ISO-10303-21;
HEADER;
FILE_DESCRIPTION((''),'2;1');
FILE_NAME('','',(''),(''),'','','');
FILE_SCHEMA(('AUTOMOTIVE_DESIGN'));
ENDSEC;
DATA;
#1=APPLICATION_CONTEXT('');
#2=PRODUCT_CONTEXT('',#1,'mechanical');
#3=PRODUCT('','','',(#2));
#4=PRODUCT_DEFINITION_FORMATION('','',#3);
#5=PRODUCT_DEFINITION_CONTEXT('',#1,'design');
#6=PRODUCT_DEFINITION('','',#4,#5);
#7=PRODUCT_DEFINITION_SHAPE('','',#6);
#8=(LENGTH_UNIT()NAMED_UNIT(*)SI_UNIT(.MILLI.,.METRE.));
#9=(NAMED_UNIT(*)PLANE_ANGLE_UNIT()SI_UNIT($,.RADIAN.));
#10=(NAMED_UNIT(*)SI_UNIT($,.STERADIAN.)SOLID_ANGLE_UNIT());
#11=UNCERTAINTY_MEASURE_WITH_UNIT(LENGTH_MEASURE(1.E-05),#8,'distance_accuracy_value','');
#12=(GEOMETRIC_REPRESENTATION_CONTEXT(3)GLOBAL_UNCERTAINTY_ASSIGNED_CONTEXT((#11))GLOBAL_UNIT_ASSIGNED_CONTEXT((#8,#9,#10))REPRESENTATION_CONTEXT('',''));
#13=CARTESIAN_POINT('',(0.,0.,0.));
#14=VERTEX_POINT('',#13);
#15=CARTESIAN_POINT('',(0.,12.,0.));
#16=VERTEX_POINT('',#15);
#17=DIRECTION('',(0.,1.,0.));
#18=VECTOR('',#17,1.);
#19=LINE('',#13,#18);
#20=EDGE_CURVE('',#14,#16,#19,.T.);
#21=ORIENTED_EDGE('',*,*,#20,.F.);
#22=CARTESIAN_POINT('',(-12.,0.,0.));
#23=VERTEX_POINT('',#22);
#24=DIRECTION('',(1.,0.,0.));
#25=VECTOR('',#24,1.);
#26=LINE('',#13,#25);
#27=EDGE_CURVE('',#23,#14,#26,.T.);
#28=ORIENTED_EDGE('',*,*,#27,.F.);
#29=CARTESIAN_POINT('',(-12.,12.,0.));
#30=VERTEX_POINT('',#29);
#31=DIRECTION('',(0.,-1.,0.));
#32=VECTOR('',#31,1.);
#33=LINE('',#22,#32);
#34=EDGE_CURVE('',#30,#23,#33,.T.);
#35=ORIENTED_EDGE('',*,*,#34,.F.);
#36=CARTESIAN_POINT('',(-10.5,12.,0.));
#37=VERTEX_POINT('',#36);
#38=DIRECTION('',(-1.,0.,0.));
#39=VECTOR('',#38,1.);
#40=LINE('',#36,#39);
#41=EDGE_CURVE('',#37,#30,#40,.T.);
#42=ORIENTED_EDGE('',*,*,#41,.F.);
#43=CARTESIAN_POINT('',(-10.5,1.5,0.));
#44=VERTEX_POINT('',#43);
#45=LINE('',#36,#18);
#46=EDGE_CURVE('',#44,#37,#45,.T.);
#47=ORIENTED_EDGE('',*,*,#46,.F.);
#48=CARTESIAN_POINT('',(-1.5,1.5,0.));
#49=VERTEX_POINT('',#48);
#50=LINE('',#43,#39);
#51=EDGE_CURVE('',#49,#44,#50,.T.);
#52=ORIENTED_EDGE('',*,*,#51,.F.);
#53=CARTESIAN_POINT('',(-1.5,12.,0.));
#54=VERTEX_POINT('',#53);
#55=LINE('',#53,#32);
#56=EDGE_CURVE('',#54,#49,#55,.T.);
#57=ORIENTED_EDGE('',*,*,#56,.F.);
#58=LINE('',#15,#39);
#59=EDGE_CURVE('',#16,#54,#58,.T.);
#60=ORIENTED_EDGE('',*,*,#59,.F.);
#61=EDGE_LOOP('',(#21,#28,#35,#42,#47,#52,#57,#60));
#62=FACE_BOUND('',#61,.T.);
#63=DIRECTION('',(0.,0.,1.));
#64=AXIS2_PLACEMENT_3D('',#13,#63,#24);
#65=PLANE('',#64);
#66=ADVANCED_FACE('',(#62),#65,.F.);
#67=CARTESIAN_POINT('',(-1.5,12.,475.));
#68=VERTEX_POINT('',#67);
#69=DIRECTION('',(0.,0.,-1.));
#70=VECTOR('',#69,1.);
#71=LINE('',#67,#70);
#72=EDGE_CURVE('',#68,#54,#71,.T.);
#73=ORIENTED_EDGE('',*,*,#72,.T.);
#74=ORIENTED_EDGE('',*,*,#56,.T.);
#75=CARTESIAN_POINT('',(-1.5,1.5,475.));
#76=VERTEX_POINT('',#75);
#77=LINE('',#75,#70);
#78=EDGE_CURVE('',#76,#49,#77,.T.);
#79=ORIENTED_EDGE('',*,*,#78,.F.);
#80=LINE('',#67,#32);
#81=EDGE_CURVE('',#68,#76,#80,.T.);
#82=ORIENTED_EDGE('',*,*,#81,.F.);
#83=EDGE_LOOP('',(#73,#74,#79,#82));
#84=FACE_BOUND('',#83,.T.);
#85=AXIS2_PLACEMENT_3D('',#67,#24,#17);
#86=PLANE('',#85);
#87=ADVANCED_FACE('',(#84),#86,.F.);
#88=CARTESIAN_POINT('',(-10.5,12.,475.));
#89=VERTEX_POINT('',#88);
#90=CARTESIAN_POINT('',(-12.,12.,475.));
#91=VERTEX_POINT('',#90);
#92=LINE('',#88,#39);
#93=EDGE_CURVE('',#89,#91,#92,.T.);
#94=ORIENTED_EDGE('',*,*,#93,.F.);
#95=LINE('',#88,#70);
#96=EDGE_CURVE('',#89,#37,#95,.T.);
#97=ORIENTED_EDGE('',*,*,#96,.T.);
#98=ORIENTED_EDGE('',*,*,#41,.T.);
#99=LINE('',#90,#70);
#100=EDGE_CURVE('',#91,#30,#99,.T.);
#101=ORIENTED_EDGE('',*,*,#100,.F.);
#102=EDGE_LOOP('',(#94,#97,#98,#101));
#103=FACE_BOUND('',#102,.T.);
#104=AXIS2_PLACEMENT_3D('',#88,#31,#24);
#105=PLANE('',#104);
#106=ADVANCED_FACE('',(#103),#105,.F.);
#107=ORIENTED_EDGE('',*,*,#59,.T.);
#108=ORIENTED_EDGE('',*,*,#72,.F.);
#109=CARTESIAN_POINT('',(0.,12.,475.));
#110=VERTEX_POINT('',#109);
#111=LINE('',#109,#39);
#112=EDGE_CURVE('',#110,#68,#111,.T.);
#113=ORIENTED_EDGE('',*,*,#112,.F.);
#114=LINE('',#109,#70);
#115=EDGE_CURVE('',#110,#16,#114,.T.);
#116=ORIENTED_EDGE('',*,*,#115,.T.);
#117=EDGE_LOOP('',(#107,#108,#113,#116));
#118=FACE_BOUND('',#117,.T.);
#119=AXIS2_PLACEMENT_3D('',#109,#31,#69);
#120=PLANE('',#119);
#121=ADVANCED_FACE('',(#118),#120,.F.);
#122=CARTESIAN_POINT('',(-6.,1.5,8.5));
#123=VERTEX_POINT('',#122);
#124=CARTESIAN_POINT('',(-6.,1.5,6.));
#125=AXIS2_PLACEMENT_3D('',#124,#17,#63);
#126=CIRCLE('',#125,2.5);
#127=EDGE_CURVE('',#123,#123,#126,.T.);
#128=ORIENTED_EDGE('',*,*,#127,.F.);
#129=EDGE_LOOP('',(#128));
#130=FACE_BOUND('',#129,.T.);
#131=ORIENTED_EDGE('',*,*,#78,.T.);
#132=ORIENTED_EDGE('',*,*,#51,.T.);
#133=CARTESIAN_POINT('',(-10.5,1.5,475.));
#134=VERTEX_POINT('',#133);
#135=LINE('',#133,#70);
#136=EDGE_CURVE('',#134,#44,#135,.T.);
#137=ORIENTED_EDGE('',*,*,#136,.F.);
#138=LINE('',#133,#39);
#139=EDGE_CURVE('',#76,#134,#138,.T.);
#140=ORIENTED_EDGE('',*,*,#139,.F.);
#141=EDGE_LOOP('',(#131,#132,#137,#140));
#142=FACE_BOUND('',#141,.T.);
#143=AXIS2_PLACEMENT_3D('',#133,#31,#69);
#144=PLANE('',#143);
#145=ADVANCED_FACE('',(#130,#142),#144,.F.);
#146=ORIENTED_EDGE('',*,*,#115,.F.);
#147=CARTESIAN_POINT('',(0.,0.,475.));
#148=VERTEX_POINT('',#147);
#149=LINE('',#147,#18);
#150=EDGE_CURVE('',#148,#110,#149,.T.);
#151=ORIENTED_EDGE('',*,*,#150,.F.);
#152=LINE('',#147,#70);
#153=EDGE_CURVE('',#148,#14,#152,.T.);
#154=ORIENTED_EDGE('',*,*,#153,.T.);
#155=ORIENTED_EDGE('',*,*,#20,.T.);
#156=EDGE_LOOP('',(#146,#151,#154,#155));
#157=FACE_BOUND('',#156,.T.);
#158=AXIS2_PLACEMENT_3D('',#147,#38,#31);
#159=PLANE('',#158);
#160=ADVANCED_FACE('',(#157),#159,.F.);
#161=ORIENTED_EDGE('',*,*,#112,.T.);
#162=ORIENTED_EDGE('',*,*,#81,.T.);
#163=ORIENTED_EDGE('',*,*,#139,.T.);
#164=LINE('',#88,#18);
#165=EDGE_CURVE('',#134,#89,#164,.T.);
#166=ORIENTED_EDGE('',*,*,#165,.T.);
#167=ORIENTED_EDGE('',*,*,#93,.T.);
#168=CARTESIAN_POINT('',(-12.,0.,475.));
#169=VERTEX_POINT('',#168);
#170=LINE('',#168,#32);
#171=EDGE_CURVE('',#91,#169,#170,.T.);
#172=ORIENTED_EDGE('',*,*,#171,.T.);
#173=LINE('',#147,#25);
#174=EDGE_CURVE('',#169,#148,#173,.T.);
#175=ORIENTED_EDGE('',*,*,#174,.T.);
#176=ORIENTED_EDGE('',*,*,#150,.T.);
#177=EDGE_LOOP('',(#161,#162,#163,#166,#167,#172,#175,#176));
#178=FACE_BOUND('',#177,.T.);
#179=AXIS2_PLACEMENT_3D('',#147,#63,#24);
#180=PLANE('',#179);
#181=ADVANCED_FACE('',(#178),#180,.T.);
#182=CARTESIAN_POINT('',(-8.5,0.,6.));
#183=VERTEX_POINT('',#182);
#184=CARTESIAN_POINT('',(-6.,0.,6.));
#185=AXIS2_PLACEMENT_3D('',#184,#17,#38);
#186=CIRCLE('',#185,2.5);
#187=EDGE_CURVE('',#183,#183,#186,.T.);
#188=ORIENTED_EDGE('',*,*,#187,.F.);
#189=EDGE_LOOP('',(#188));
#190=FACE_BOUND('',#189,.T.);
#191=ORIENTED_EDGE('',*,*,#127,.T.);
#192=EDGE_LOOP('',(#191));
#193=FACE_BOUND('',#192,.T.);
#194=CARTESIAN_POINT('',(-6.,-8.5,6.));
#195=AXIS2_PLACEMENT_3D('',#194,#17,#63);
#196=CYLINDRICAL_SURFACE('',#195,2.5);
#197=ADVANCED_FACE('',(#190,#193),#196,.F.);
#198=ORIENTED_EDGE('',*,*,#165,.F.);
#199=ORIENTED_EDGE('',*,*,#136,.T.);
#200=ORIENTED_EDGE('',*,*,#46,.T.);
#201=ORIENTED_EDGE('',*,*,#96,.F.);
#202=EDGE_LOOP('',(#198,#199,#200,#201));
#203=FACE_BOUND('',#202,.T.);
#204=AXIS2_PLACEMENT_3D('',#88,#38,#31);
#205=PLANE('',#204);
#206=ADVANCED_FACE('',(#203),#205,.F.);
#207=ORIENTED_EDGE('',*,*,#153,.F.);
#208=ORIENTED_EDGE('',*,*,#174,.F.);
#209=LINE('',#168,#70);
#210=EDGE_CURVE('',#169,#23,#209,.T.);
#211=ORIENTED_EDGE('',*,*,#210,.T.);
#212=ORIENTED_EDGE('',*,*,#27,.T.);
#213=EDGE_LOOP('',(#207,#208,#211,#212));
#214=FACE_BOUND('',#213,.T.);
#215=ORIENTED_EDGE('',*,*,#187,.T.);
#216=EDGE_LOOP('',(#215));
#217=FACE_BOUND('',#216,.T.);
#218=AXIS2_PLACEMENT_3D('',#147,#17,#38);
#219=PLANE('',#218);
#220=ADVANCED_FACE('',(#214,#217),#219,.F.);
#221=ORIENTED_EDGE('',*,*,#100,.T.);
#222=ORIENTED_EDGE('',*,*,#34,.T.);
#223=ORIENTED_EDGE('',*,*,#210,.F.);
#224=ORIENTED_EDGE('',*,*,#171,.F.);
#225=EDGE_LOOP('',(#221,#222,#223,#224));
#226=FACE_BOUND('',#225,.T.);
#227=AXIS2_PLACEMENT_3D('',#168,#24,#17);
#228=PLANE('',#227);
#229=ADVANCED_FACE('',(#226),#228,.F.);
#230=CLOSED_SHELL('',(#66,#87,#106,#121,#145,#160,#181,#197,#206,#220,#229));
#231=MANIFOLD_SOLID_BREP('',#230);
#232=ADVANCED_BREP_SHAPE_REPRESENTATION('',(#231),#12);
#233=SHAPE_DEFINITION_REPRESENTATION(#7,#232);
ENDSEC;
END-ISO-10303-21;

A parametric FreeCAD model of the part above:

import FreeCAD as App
import Part
import Sketcher
Q = App.Units.Quantity


def add_polygon(sketch, points):
    """Adds a closed chain of lines whose ends are joined by coincident constraints."""
    first, n = sketch.GeometryCount, len(points)
    for a, b in zip(points, points[1:] + points[:1]):
        sketch.addGeometry(Part.LineSegment(App.Vector(*a, 0), App.Vector(*b, 0)), False)
    for i in range(n):
        sketch.addConstraint(Sketcher.Constraint("Coincident", first + i, 2, first + (i + 1) % n, 1))

doc = App.newDocument("Part")
params = doc.addObject("Spreadsheet::Sheet", "Params")
for row, (alias, value) in enumerate([
    ("sketch1_width", "12 mm"),
    ("sketch1_width2", "9 mm"),
    ("sketch1_height", "10.5 mm"),
    ("pad1_length", "475 mm"),
    ("sketch2_diameter", "5 mm"),
    ("pocket1_length", "10 mm"),
], start=1):
    params.set(f"A{row}", alias)
    params.set(f"B{row}", "=" + value)
    params.setAlias(f"B{row}", alias)

body = doc.addObject("PartDesign::Body", "Body")

# Sketch on XY plane
sketch1 = body.newObject("Sketcher::SketchObject", "Sketch")
sketch1.AttachmentSupport = (doc.getObject("XY_Plane"), [""])
sketch1.MapMode = "FlatFace"
add_polygon(sketch1, [(-10.5, 12), (-12, 12), (-12, 0), (0, 0), (0, 12), (-1.5, 12), (-1.5, 1.5), (-10.5, 1.5)])  # lines 0-7
sketch1.addConstraint([
    Sketcher.Constraint("Horizontal", 0),
    Sketcher.Constraint("Vertical", 1),
    Sketcher.Constraint("Horizontal", 2),
    Sketcher.Constraint("Vertical", 3),
    Sketcher.Constraint("Horizontal", 4),
    Sketcher.Constraint("Vertical", 5),
    Sketcher.Constraint("Horizontal", 6),
    Sketcher.Constraint("Vertical", 7),
    Sketcher.Constraint("Coincident", 2, 2, -1, 1),
    Sketcher.Constraint("Horizontal", 0, 2, 3, 2),
    Sketcher.Constraint("Equal", 0, 4),
    Sketcher.Constraint("Equal", 2, 1),
    Sketcher.Constraint("DistanceX", 2, 1, 2, 2, Q("12 mm")),
    Sketcher.Constraint("DistanceX", 6, 2, 6, 1, Q("9 mm")),
    Sketcher.Constraint("DistanceY", 5, 2, 5, 1, Q("10.5 mm")),
])
sketch1.setExpression("Constraints[20]", "Params.sketch1_width")
sketch1.setExpression("Constraints[21]", "Params.sketch1_width2")
sketch1.setExpression("Constraints[22]", "Params.sketch1_height")
pad1 = body.newObject("PartDesign::Pad", "Pad")
pad1.Profile = sketch1
pad1.setExpression("Length", "Params.pad1_length")

# Sketch on XZ plane
sketch2 = body.newObject("Sketcher::SketchObject", "Sketch001")
sketch2.AttachmentSupport = (doc.getObject("XZ_Plane"), [""])
sketch2.MapMode = "FlatFace"
sketch2.AttachmentOffset = App.Placement(App.Vector(0, 0, -1.5), App.Rotation())
sketch2.addGeometry(Part.Circle(App.Vector(-6, 6, 0), App.Vector(0, 0, 1), 2.5), False)
sketch2.addConstraint([
    Sketcher.Constraint("Diameter", 0, Q("5 mm")),
    Sketcher.Constraint("DistanceX", 0, 3, -1, 1, Q("6 mm")),
    Sketcher.Constraint("DistanceY", -1, 1, 0, 3, Q("6 mm")),
])
sketch2.setExpression("Constraints[0]", "Params.sketch2_diameter")
pocket1 = body.newObject("PartDesign::Pocket", "Pocket")
pocket1.Profile = sketch2
pocket1.setExpression("Length", "Params.pocket1_length")
pocket1.Reversed = True

doc.recompute()
